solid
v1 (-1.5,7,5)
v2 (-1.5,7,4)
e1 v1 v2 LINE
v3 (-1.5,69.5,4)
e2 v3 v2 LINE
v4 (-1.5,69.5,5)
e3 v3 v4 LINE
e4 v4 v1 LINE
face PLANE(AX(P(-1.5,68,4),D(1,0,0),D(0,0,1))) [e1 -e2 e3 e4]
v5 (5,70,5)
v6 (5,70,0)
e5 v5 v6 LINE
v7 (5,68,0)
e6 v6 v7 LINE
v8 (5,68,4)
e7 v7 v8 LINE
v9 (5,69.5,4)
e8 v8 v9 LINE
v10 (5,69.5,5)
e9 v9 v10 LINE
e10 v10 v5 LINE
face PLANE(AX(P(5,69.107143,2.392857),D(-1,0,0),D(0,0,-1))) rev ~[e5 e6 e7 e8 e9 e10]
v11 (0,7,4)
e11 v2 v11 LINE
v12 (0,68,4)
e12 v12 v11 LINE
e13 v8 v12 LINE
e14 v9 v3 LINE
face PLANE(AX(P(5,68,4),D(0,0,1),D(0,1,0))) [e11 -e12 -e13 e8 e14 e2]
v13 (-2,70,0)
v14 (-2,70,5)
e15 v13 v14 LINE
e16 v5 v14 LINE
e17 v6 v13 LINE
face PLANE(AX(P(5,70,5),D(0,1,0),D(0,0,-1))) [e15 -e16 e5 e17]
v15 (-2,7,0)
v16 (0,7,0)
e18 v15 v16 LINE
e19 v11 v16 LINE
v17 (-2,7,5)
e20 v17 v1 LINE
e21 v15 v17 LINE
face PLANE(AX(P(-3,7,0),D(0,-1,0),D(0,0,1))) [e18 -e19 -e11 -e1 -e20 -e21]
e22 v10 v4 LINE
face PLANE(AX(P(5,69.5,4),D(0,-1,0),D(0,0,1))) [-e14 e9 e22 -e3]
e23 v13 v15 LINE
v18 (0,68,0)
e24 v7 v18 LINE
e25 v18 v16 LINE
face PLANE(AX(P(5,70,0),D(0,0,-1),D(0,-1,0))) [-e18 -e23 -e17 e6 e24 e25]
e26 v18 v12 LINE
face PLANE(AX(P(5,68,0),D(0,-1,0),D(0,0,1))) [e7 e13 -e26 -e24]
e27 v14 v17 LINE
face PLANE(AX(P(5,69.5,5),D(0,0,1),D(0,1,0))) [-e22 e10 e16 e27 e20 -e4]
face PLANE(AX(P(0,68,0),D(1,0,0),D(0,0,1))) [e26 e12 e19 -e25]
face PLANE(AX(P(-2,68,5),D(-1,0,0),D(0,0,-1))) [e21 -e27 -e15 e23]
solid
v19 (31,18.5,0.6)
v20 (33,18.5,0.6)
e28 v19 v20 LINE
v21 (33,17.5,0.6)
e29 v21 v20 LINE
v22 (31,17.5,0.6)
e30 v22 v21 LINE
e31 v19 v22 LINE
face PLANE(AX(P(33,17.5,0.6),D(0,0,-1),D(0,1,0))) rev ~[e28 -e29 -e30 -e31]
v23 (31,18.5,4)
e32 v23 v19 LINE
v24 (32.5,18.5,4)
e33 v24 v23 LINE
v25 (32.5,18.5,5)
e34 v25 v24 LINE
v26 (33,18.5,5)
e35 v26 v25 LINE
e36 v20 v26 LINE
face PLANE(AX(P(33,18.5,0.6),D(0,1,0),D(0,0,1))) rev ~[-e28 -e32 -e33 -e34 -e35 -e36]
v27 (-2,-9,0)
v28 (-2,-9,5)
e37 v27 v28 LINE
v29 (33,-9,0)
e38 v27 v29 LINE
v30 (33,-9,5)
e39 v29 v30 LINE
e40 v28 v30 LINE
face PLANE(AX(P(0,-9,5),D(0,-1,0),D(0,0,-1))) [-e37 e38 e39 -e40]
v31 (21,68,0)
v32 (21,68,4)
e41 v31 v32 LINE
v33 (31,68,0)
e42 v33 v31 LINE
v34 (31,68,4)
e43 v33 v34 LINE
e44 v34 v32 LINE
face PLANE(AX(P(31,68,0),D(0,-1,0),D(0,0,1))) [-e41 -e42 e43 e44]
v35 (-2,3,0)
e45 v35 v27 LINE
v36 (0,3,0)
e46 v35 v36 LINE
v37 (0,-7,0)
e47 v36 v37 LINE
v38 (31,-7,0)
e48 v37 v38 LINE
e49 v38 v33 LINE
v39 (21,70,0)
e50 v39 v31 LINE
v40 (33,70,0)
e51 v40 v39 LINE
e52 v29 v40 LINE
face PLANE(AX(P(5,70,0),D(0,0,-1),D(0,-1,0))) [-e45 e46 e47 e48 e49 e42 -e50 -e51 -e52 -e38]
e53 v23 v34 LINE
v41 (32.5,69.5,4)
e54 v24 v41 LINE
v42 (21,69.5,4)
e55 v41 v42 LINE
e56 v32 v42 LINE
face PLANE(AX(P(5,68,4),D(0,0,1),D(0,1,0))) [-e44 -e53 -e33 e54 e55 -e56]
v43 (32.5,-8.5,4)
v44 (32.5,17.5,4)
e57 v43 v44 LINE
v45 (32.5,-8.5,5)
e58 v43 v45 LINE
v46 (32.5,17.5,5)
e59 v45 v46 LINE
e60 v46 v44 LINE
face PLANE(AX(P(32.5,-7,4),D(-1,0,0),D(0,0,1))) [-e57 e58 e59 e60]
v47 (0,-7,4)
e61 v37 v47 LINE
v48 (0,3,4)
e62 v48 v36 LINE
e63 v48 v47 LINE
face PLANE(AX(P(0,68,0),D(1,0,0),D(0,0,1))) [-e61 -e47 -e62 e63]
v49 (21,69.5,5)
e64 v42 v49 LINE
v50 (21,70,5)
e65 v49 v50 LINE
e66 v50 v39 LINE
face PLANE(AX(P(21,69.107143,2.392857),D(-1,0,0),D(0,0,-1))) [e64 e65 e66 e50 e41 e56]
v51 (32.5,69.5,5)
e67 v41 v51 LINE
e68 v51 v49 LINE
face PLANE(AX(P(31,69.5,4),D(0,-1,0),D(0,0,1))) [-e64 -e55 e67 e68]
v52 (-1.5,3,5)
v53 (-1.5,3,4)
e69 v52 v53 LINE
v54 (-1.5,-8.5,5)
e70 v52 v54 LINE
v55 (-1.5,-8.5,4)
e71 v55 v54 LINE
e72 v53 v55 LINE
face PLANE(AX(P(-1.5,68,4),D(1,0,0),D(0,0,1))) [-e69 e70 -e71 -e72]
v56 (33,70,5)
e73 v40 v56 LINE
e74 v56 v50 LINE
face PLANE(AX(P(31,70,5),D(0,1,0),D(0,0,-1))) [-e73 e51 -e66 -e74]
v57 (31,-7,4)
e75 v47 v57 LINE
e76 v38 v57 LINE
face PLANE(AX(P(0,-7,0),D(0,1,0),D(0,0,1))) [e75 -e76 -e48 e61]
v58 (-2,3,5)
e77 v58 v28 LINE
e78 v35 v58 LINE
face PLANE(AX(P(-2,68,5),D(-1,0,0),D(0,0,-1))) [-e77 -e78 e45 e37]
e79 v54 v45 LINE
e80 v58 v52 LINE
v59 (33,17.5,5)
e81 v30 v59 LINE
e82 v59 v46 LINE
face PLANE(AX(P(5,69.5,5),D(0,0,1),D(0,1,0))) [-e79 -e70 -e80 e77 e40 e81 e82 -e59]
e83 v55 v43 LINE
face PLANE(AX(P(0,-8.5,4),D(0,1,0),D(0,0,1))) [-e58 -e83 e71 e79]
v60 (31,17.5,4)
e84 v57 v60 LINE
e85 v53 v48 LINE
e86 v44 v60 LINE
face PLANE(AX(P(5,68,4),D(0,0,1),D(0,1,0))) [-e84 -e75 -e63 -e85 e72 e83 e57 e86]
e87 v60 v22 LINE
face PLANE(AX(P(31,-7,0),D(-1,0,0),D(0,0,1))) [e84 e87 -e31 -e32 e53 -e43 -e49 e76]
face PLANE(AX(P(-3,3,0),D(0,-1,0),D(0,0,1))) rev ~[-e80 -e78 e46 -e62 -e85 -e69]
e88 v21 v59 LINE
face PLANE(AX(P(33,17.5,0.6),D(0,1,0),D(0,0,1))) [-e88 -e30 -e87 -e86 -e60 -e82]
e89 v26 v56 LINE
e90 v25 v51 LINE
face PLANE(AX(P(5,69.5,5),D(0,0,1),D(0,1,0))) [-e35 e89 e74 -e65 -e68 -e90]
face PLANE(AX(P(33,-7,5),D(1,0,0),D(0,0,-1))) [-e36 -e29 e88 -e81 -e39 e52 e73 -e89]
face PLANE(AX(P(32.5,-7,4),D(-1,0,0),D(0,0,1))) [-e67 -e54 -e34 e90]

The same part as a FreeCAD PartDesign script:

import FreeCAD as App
import Part
import Sketcher
Q = App.Units.Quantity

doc = App.newDocument("Part")
body = doc.addObject("PartDesign::Body", "Body")

# Sketch on YZ plane
sketch1 = body.newObject("Sketcher::SketchObject", "Sketch")
sketch1.AttachmentSupport = (doc.getObject("YZ_Plane"), [""])
sketch1.MapMode = "FlatFace"
sketch1.AttachmentOffset = App.Placement(App.Vector(0, 0, -3), App.Rotation())
sketch1.addGeometry([
    Part.LineSegment(App.Vector(7, 5, 0), App.Vector(7, 0, 0)),
    Part.LineSegment(App.Vector(7, 0, 0), App.Vector(3, 0, 0)),
    Part.LineSegment(App.Vector(3, 0, 0), App.Vector(3, 5, 0)),
    Part.LineSegment(App.Vector(3, 5, 0), App.Vector(7, 5, 0)),
], False)
sketch1.addConstraint([
    Sketcher.Constraint("Coincident", 0, 2, 1, 1),
    Sketcher.Constraint("Coincident", 1, 2, 2, 1),
    Sketcher.Constraint("Coincident", 2, 2, 3, 1),
    Sketcher.Constraint("Coincident", 3, 2, 0, 1),
    Sketcher.Constraint("Vertical", 0),
    Sketcher.Constraint("Horizontal", 1),
    Sketcher.Constraint("Vertical", 2),
    Sketcher.Constraint("Horizontal", 3),
    Sketcher.Constraint("PointOnObject", 0, 2, -1),
    Sketcher.Constraint("DistanceX", 1, 2, 1, 1, Q("4 mm")),
    Sketcher.Constraint("DistanceY", 0, 2, 0, 1, Q("5 mm")),
    Sketcher.Constraint("DistanceX", -1, 1, 0, 2, Q("7 mm")),
])
pad1 = body.newObject("PartDesign::Pad", "Pad")
pad1.Profile = sketch1
pad1.Length = 4
body2 = doc.addObject("PartDesign::Body", "Body001")
body2.AllowCompound = True

# Sketch on YZ plane
sketch2 = body2.newObject("Sketcher::SketchObject", "Sketch001")
sketch2.AttachmentSupport = (doc.getObject("YZ_Plane001"), [""])
sketch2.MapMode = "FlatFace"
sketch2.AttachmentOffset = App.Placement(App.Vector(0, 0, 33), App.Rotation())
sketch2.addGeometry([
    Part.LineSegment(App.Vector(17.5, 6.6, 0), App.Vector(17.5, 0.6, 0)),
    Part.LineSegment(App.Vector(17.5, 0.6, 0), App.Vector(18.5, 0.6, 0)),
    Part.LineSegment(App.Vector(18.5, 0.6, 0), App.Vector(18.5, 6.6, 0)),
    Part.LineSegment(App.Vector(18.5, 6.6, 0), App.Vector(17.5, 6.6, 0)),
], False)
sketch2.addConstraint([
    Sketcher.Constraint("Coincident", 0, 2, 1, 1),
    Sketcher.Constraint("Coincident", 1, 2, 2, 1),
    Sketcher.Constraint("Coincident", 2, 2, 3, 1),
    Sketcher.Constraint("Coincident", 3, 2, 0, 1),
    Sketcher.Constraint("Vertical", 0),
    Sketcher.Constraint("Horizontal", 1),
    Sketcher.Constraint("Vertical", 2),
    Sketcher.Constraint("Horizontal", 3),
    Sketcher.Constraint("DistanceX", 1, 1, 1, 2, Q("1 mm")),
    Sketcher.Constraint("DistanceY", 0, 2, 0, 1, Q("6 mm")),
    Sketcher.Constraint("DistanceX", -1, 1, 0, 2, Q("17.5 mm")),
    Sketcher.Constraint("DistanceY", -1, 1, 0, 2, Q("0.6 mm")),
])
pad2 = body2.newObject("PartDesign::Pad", "Pad001")
pad2.Profile = sketch2
pad2.Type = "TwoLengths"
pad2.Length = 1
pad2.Length2 = 3
doc.recompute()

boolean = body2.newObject("PartDesign::Boolean", "Boolean")
boolean.Type = "Fuse"
boolean.addObjects([body])
body3 = doc.addObject("PartDesign::Body", "Body002")
body3.AllowCompound = True

# Sketch on YZ plane
sketch3 = body3.newObject("Sketcher::SketchObject", "Sketch002")
sketch3.AttachmentSupport = (doc.getObject("YZ_Plane002"), [""])
sketch3.MapMode = "FlatFace"
sketch3.AttachmentOffset = App.Placement(App.Vector(0, 0, 16), App.Rotation())
sketch3.addGeometry([
    Part.LineSegment(App.Vector(-7, 0, 0), App.Vector(-7, 4, 0)),  # 0
    Part.LineSegment(App.Vector(-7, 4, 0), App.Vector(-8.5, 4, 0)),  # 1
    Part.LineSegment(App.Vector(-8.5, 4, 0), App.Vector(-8.5, 5, 0)),  # 2
    Part.LineSegment(App.Vector(-8.5, 5, 0), App.Vector(-9, 5, 0)),  # 3
    Part.LineSegment(App.Vector(-9, 5, 0), App.Vector(-9, 0, 0)),  # 4
    Part.LineSegment(App.Vector(-9, 0, 0), App.Vector(-7, 0, 0)),  # 5
], False)
sketch3.addConstraint([
    Sketcher.Constraint("Coincident", 0, 2, 1, 1),
    Sketcher.Constraint("Coincident", 1, 2, 2, 1),
    Sketcher.Constraint("Coincident", 2, 2, 3, 1),
    Sketcher.Constraint("Coincident", 3, 2, 4, 1),
    Sketcher.Constraint("Coincident", 4, 2, 5, 1),
    Sketcher.Constraint("Coincident", 5, 2, 0, 1),
    Sketcher.Constraint("Vertical", 0),
    Sketcher.Constraint("Horizontal", 1),
    Sketcher.Constraint("Vertical", 2),
    Sketcher.Constraint("Horizontal", 3),
    Sketcher.Constraint("Vertical", 4),
    Sketcher.Constraint("Horizontal", 5),
    Sketcher.Constraint("PointOnObject", 4, 2, -1),
    Sketcher.Constraint("DistanceX", 5, 1, 5, 2, Q("2 mm")),
    Sketcher.Constraint("DistanceY", 0, 1, 0, 2, Q("4 mm")),
    Sketcher.Constraint("DistanceY", 2, 1, 2, 2, Q("1 mm")),
    Sketcher.Constraint("DistanceX", 1, 2, 1, 1, Q("1.5 mm")),
    Sketcher.Constraint("DistanceX", 0, 2, -1, 1, Q("7 mm")),
])

# Sketch on XY plane
sketch4 = body3.newObject("Sketcher::SketchObject", "Sketch003")
sketch4.AttachmentSupport = (doc.getObject("XY_Plane002"), [""])
sketch4.MapMode = "FlatFace"
sketch4.addGeometry([
    Part.LineSegment(App.Vector(5, 68, 0), App.Vector(0, 68, 0)),  # 0
    Part.LineSegment(App.Vector(0, 68, 0), App.Vector(0, -7, 0)),  # 1
    Part.LineSegment(App.Vector(0, -7, 0), App.Vector(31, -7, 0)),  # 2
    Part.LineSegment(App.Vector(31, -7, 0), App.Vector(31, 68, 0)),  # 3
    Part.LineSegment(App.Vector(31, 68, 0), App.Vector(21, 68, 0)),  # 4
], False)
sketch4.addConstraint([
    Sketcher.Constraint("Coincident", 0, 2, 1, 1),
    Sketcher.Constraint("Coincident", 1, 2, 2, 1),
    Sketcher.Constraint("Coincident", 2, 2, 3, 1),
    Sketcher.Constraint("Coincident", 3, 2, 4, 1),
    Sketcher.Constraint("Horizontal", 0),
    Sketcher.Constraint("Vertical", 1),
    Sketcher.Constraint("Horizontal", 2),
    Sketcher.Constraint("Vertical", 3),
    Sketcher.Constraint("Horizontal", 4),
    Sketcher.Constraint("PointOnObject", 0, 2, -2),
    Sketcher.Constraint("Horizontal", 0, 2, 3, 2),
    Sketcher.Constraint("DistanceX", 0, 2, 0, 1, Q("5 mm")),
    Sketcher.Constraint("DistanceX", 2, 1, 2, 2, Q("31 mm")),
    Sketcher.Constraint("DistanceX", 4, 2, 4, 1, Q("10 mm")),
    Sketcher.Constraint("DistanceY", 1, 2, 1, 1, Q("75 mm")),
    Sketcher.Constraint("DistanceY", -1, 1, 0, 1, Q("68 mm")),
])
doc.recompute()

additivepipe = body3.newObject("PartDesign::AdditivePipe", "AdditivePipe")
additivepipe.Profile = sketch3
additivepipe.Spine = (sketch4, ["Edge1", "Edge2", "Edge3", "Edge4", "Edge5"])
additivepipe.Transition = "Right corner"
doc.recompute()

boolean2 = body3.newObject("PartDesign::Boolean", "Boolean001")
boolean2.Type = "Cut"
boolean2.addObjects([body2])

doc.recompute()
